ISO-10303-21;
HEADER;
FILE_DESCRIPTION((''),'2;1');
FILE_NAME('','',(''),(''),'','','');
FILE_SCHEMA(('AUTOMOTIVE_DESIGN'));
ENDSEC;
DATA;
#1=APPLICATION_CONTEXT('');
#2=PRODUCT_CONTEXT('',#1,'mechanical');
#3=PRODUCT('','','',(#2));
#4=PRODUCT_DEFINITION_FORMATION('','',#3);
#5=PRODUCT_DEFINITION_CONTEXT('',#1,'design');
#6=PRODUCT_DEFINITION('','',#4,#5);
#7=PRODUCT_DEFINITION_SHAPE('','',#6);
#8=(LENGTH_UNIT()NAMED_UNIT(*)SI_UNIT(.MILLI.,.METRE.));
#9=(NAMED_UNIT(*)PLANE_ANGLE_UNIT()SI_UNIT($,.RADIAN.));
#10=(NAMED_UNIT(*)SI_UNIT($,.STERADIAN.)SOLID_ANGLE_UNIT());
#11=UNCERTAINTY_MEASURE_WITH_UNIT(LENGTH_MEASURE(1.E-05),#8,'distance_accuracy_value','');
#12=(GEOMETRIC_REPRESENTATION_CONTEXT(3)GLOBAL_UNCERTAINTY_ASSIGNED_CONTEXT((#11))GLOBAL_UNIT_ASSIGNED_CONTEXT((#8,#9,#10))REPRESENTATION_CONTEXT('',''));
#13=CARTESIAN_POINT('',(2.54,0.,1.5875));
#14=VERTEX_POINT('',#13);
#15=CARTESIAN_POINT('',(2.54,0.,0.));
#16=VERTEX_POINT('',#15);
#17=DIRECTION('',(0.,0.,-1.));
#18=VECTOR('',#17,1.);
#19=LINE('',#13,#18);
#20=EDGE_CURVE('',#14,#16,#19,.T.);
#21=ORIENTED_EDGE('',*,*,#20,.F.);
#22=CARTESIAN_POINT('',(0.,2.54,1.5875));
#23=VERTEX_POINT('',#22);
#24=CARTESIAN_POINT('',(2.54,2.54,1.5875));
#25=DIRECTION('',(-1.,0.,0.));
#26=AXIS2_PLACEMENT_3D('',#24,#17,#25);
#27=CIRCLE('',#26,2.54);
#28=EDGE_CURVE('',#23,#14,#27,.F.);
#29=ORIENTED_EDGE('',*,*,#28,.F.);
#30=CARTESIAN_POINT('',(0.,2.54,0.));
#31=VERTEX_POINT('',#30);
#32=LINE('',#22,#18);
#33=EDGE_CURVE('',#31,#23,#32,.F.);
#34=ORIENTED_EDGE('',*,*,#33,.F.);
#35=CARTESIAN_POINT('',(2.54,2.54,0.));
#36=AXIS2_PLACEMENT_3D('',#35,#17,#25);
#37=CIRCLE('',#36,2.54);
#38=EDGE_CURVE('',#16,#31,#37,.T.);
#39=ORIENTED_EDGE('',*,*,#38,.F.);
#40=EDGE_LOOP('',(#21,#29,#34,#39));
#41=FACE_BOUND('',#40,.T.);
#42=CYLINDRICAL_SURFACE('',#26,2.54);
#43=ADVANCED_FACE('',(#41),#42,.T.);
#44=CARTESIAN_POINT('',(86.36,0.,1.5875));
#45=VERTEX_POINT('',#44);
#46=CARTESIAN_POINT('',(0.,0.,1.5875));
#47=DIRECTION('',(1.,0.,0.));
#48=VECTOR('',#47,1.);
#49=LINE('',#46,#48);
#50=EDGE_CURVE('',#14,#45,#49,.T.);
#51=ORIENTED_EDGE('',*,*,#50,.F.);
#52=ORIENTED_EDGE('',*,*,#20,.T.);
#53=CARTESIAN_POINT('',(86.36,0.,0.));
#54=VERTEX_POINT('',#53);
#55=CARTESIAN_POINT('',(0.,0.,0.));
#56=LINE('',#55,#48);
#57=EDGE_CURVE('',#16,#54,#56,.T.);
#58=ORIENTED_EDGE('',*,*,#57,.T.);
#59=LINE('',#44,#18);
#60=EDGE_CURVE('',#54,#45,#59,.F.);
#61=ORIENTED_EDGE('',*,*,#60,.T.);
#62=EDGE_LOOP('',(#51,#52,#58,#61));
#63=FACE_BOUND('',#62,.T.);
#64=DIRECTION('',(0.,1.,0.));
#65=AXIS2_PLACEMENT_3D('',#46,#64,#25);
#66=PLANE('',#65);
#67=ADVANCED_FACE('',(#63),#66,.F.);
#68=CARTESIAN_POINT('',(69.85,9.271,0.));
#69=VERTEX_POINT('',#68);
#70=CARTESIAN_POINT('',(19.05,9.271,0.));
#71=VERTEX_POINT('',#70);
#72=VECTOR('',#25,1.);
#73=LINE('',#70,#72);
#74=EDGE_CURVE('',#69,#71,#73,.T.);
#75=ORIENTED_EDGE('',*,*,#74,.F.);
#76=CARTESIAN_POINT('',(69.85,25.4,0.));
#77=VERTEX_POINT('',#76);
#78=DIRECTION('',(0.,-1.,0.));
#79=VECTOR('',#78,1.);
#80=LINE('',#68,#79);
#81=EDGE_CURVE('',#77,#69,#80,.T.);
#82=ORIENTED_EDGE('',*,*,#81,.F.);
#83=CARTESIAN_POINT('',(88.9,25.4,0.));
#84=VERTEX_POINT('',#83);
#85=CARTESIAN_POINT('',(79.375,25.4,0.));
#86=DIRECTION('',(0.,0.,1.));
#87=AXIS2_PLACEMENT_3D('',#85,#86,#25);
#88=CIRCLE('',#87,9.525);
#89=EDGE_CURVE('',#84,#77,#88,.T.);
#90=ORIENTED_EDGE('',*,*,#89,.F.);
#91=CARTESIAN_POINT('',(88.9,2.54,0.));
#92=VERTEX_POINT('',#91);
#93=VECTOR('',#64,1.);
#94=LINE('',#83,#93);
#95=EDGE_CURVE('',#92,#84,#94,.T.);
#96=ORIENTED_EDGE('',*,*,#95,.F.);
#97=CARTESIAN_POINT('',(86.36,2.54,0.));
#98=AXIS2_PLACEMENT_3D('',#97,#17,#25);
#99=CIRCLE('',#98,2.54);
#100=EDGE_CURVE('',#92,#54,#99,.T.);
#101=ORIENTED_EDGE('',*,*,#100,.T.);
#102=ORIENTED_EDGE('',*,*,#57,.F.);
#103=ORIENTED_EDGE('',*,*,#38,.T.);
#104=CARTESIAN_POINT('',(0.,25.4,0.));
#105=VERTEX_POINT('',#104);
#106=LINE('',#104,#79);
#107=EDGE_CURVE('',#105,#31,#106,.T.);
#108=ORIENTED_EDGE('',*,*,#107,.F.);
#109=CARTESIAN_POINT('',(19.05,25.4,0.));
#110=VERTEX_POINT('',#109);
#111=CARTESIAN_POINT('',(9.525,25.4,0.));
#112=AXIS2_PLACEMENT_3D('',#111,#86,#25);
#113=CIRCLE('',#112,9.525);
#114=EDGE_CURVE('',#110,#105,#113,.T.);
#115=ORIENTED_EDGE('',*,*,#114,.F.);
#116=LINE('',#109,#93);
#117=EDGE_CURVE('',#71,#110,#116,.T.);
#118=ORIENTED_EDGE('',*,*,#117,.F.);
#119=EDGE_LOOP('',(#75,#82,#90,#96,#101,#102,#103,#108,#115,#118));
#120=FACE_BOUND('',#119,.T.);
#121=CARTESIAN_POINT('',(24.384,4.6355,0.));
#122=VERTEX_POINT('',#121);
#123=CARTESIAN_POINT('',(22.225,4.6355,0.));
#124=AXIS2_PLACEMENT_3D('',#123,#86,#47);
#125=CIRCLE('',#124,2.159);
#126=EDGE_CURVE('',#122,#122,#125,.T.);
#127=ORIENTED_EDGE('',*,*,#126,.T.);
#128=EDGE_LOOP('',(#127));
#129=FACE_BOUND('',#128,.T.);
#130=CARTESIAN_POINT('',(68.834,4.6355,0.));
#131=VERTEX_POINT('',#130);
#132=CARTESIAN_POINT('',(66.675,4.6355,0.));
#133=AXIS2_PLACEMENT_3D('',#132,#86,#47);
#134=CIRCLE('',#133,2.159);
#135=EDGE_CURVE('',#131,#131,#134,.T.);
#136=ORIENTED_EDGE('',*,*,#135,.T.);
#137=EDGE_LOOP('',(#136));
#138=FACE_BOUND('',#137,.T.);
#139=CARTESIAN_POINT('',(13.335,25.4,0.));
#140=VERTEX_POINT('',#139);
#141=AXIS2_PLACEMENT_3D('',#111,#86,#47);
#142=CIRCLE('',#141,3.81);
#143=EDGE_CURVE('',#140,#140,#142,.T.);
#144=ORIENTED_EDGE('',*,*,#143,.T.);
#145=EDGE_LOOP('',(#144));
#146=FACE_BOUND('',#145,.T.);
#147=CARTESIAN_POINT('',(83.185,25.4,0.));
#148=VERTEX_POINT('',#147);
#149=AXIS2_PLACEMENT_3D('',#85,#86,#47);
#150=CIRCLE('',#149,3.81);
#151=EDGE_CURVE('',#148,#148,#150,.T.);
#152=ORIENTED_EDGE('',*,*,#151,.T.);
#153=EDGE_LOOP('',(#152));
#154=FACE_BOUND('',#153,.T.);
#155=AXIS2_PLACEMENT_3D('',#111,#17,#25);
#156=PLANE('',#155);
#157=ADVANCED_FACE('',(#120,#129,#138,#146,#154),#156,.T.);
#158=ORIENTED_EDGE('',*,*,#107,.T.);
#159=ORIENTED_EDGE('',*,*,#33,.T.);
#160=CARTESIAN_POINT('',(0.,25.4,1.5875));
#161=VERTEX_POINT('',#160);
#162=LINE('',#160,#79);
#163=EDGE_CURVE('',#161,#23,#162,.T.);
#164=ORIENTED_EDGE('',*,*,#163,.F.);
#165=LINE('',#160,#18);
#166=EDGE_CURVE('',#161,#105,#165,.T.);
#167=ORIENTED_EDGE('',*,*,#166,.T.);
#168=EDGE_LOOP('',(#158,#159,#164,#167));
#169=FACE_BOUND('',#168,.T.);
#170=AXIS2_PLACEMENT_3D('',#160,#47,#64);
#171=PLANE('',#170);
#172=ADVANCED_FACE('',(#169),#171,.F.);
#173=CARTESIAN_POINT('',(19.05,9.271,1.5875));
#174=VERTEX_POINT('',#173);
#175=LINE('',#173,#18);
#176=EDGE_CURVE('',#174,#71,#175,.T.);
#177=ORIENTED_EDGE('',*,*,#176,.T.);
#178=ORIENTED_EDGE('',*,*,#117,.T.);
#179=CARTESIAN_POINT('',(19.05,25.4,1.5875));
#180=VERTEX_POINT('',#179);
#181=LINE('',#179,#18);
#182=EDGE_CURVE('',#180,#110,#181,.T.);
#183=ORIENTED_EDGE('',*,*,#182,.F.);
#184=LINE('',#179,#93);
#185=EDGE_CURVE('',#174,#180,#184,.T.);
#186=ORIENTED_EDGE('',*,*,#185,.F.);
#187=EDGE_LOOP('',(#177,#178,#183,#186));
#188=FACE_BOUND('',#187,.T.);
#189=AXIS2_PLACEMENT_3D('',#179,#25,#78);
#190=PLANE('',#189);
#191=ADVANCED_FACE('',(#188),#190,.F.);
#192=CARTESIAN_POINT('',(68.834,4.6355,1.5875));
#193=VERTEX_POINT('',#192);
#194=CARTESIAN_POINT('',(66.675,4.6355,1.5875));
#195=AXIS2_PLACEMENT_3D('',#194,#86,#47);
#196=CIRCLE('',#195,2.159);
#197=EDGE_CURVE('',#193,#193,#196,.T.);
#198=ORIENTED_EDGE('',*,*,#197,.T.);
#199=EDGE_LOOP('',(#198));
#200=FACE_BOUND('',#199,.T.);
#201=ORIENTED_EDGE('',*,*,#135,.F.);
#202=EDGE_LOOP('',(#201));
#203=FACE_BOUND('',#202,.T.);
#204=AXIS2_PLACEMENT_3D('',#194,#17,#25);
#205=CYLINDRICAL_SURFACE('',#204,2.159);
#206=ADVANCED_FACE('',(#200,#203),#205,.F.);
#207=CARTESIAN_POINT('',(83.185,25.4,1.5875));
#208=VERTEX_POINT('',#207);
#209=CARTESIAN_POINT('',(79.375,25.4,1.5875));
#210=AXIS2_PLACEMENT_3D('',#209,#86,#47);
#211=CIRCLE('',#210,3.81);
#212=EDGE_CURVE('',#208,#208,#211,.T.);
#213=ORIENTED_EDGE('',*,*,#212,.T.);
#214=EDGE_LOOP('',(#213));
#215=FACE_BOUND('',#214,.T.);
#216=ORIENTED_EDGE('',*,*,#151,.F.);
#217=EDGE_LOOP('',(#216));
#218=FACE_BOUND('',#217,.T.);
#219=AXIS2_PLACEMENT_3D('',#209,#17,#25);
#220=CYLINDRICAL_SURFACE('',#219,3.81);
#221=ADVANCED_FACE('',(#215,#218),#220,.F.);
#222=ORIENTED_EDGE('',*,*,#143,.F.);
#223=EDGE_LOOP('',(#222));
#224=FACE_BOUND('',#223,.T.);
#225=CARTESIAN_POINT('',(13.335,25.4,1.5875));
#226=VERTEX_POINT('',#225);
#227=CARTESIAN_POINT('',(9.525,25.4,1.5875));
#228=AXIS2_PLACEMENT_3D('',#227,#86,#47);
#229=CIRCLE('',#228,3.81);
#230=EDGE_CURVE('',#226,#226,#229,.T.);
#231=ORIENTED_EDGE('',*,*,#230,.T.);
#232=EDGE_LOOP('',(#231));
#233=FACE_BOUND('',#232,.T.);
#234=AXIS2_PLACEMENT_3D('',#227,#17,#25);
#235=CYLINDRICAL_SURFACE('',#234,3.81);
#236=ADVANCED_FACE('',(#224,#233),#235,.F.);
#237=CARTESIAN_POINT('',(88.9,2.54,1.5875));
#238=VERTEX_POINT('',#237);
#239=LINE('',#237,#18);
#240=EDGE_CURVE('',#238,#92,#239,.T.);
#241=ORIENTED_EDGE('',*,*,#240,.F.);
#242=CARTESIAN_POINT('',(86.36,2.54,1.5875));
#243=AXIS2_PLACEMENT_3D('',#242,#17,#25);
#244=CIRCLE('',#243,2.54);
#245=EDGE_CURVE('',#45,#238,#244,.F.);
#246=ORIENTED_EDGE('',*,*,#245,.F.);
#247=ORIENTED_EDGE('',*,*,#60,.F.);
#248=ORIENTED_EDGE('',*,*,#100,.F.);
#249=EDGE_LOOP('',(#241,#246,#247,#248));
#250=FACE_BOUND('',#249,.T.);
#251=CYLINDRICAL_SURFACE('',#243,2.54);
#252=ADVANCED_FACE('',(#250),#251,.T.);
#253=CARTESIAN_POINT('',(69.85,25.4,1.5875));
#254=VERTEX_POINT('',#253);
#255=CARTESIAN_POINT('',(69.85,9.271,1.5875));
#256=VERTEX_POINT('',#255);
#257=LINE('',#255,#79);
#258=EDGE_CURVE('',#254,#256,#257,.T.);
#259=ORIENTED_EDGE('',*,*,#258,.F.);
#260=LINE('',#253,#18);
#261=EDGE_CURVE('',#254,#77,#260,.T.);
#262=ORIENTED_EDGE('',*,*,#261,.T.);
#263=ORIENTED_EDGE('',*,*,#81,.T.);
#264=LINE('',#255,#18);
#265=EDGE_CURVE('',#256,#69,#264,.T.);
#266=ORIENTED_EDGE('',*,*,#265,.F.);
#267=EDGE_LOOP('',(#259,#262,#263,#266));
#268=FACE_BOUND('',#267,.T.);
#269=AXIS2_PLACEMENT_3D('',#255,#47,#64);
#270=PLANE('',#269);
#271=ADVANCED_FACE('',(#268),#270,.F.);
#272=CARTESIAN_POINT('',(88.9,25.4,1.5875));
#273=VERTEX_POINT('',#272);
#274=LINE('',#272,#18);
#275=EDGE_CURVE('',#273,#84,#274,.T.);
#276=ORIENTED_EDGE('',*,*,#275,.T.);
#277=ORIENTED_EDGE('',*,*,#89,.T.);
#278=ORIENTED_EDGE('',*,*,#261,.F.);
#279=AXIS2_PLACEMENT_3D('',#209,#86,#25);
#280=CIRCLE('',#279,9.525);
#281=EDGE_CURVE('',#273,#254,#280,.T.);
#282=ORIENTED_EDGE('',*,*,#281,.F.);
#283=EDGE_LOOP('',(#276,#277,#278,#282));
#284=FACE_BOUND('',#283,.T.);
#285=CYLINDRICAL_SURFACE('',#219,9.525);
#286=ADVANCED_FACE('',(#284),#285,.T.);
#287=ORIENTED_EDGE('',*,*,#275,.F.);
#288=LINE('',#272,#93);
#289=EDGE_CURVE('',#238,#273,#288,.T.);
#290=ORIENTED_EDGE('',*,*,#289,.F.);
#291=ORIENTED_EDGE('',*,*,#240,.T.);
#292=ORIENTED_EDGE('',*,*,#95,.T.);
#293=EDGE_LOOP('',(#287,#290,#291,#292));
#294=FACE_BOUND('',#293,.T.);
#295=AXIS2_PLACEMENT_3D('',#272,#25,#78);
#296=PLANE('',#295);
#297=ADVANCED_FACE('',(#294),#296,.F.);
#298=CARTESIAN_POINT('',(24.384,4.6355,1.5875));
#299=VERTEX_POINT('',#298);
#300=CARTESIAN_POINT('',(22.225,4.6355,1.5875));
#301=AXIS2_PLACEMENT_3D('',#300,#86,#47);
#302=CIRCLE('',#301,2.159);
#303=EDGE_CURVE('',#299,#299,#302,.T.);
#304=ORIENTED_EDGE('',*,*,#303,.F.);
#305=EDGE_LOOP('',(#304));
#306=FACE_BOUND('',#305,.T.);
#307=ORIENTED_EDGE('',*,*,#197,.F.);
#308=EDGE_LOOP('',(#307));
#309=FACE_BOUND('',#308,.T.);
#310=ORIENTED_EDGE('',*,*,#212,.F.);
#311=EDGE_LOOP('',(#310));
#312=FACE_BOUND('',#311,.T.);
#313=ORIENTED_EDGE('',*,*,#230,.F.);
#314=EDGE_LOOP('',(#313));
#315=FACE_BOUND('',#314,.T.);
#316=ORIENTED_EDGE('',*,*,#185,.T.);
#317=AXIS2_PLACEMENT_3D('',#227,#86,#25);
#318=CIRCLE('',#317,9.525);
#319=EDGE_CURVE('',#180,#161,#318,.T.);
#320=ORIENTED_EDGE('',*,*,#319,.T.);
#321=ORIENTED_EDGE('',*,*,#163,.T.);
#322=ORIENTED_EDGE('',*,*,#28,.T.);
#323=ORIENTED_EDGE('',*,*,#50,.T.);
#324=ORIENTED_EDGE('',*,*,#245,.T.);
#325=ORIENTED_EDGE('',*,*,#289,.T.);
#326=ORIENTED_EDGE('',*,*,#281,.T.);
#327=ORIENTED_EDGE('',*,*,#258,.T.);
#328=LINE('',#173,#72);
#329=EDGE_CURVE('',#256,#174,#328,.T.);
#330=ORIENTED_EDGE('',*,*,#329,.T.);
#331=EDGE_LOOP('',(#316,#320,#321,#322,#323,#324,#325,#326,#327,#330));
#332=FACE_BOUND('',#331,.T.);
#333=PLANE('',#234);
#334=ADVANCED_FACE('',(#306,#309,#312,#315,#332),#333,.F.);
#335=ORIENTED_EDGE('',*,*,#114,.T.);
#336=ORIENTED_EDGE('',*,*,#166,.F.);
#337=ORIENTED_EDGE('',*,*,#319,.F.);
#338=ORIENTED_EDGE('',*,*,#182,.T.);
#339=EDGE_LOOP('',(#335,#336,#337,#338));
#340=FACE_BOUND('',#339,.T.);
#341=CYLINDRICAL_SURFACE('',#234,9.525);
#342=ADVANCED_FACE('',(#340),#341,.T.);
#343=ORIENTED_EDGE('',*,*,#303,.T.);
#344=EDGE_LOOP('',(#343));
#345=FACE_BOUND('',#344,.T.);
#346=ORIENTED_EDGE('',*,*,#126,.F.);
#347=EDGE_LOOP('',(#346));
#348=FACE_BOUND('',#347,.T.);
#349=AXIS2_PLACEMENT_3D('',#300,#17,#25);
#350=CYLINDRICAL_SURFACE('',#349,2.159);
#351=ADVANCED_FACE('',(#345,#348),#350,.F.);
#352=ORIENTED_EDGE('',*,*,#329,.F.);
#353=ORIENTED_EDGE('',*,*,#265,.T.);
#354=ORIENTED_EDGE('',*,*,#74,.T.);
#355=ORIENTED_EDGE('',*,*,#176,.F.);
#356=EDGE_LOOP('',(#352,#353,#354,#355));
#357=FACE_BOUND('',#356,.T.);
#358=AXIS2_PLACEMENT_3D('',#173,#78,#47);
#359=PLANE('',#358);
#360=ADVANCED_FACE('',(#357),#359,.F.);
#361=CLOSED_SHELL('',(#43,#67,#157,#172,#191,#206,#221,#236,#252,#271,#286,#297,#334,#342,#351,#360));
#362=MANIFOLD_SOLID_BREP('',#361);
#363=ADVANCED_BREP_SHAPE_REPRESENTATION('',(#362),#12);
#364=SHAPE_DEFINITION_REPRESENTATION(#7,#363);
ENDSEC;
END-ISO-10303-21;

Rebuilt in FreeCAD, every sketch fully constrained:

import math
import FreeCAD as App
import Part
import Sketcher
Q = App.Units.Quantity


def edges_at(feature, points):
    """Names of the edges that pass closest to the given points."""
    edges = feature.Shape.Edges
    near = lambda p: min(range(len(edges)), key=lambda i: edges[i].distToShape(Part.Vertex(*p))[0])
    return sorted({f"Edge{near(p) + 1}" for p in points})

doc = App.newDocument("Part")
body = doc.addObject("PartDesign::Body", "Body")

sketch1 = body.newObject("Sketcher::SketchObject", "Sketch")
sketch1.AttachmentSupport = (doc.getObject("XY_Plane"), [""])
sketch1.MapMode = "FlatFace"
sketch1.addGeometry(Part.LineSegment(App.Vector(0, 25.4, 0), App.Vector(0, 0, 0)), False)
sketch1.addGeometry(Part.LineSegment(App.Vector(0, 0, 0), App.Vector(88.9, 0, 0)), False)
sketch1.addGeometry(Part.LineSegment(App.Vector(88.9, 0, 0), App.Vector(88.9, 25.4, 0)), False)
sketch1.addGeometry(Part.ArcOfCircle(Part.Circle(App.Vector(79.4, 25.4, 0), App.Vector(0, 0, 1), 9.5), math.radians(0), math.radians(180)), False)
sketch1.addGeometry(Part.LineSegment(App.Vector(69.8, 25.4, 0), App.Vector(69.8, 9.3, 0)), False)
sketch1.addGeometry(Part.LineSegment(App.Vector(69.8, 9.3, 0), App.Vector(19.1, 9.3, 0)), False)
sketch1.addGeometry(Part.LineSegment(App.Vector(19.1, 9.3, 0), App.Vector(19.1, 25.4, 0)), False)
sketch1.addGeometry(Part.ArcOfCircle(Part.Circle(App.Vector(9.5, 25.4, 0), App.Vector(0, 0, 1), 9.5), math.radians(0), math.radians(180)), False)
sketch1.addGeometry(Part.Circle(App.Vector(22.2, 4.6, 0), App.Vector(0, 0, 1), 2.2), False)
sketch1.addGeometry(Part.Circle(App.Vector(66.7, 4.6, 0), App.Vector(0, 0, 1), 2.2), False)
sketch1.addGeometry(Part.Circle(App.Vector(9.5, 25.4, 0), App.Vector(0, 0, 1), 3.8), False)
sketch1.addGeometry(Part.Circle(App.Vector(79.4, 25.4, 0), App.Vector(0, 0, 1), 3.8), False)
sketch1.addConstraint(Sketcher.Constraint("Coincident", 0, 2, 1, 1))
sketch1.addConstraint(Sketcher.Constraint("Coincident", 1, 2, 2, 1))
sketch1.addConstraint(Sketcher.Constraint("Tangent", 2, 2, 3, 1))
sketch1.addConstraint(Sketcher.Constraint("Tangent", 3, 2, 4, 1))
sketch1.addConstraint(Sketcher.Constraint("Coincident", 4, 2, 5, 1))
sketch1.addConstraint(Sketcher.Constraint("Coincident", 5, 2, 6, 1))
sketch1.addConstraint(Sketcher.Constraint("Tangent", 6, 2, 7, 1))
sketch1.addConstraint(Sketcher.Constraint("Tangent", 7, 2, 0, 1))
sketch1.addConstraint(Sketcher.Constraint("Vertical", 0))
sketch1.addConstraint(Sketcher.Constraint("Horizontal", 1))
sketch1.addConstraint(Sketcher.Constraint("Vertical", 2))
sketch1.addConstraint(Sketcher.Constraint("Vertical", 4))
sketch1.addConstraint(Sketcher.Constraint("Horizontal", 5))
sketch1.addConstraint(Sketcher.Constraint("Vertical", 6))
sketch1.addConstraint(Sketcher.Constraint("Coincident", 0, 2, -1, 1))
sketch1.addConstraint(Sketcher.Constraint("Coincident", 10, 3, 7, 3))
sketch1.addConstraint(Sketcher.Constraint("Coincident", 11, 3, 3, 3))
sketch1.addConstraint(Sketcher.Constraint("Equal", 3, 7))
sketch1.addConstraint(Sketcher.Constraint("Equal", 8, 9))
sketch1.addConstraint(Sketcher.Constraint("Equal", 10, 11))
sketch1.addConstraint(Sketcher.Constraint("Horizontal", 3, 3, 7, 3))
sketch1.addConstraint(Sketcher.Constraint("Horizontal", 8, 3, 9, 3))
sketch1.addConstraint(Sketcher.Constraint("Diameter", 10, Q("0.3 in")))
sketch1.addConstraint(Sketcher.Constraint("Diameter", 8, Q("0.17 in")))
sketch1.addConstraint(Sketcher.Constraint("DistanceX", 5, 2, 5, 1, Q("2 in")))
sketch1.addConstraint(Sketcher.Constraint("DistanceY", 0, 2, 0, 1, Q("1 in")))
sketch1.addConstraint(Sketcher.Constraint("DistanceX", 1, 1, 1, 2, Q("3.5 in")))
sketch1.addConstraint(Sketcher.Constraint("DistanceX", 7, 3, 8, 3, Q("0.5 in")))
sketch1.addConstraint(Sketcher.Constraint("DistanceX", 9, 3, 3, 3, Q("0.5 in")))
sketch1.addConstraint(Sketcher.Constraint("DistanceY", 4, 2, 4, 1, Q("0.635 in")))
sketch1.addConstraint(Sketcher.Constraint("DistanceY", -1, 1, 8, 3, Q("0.1825 in")))
pad1 = body.newObject("PartDesign::Pad", "Pad")
pad1.Profile = sketch1
pad1.Length = Q("0.0625 in")
doc.recompute()

fillet = body.newObject("PartDesign::Fillet", "Fillet")
fillet.Base = (pad1, edges_at(pad1, [(88.9, 0, 0.794), (0, 0, 0.794)]))
fillet.Radius = Q("0.1 in")

doc.recompute()
